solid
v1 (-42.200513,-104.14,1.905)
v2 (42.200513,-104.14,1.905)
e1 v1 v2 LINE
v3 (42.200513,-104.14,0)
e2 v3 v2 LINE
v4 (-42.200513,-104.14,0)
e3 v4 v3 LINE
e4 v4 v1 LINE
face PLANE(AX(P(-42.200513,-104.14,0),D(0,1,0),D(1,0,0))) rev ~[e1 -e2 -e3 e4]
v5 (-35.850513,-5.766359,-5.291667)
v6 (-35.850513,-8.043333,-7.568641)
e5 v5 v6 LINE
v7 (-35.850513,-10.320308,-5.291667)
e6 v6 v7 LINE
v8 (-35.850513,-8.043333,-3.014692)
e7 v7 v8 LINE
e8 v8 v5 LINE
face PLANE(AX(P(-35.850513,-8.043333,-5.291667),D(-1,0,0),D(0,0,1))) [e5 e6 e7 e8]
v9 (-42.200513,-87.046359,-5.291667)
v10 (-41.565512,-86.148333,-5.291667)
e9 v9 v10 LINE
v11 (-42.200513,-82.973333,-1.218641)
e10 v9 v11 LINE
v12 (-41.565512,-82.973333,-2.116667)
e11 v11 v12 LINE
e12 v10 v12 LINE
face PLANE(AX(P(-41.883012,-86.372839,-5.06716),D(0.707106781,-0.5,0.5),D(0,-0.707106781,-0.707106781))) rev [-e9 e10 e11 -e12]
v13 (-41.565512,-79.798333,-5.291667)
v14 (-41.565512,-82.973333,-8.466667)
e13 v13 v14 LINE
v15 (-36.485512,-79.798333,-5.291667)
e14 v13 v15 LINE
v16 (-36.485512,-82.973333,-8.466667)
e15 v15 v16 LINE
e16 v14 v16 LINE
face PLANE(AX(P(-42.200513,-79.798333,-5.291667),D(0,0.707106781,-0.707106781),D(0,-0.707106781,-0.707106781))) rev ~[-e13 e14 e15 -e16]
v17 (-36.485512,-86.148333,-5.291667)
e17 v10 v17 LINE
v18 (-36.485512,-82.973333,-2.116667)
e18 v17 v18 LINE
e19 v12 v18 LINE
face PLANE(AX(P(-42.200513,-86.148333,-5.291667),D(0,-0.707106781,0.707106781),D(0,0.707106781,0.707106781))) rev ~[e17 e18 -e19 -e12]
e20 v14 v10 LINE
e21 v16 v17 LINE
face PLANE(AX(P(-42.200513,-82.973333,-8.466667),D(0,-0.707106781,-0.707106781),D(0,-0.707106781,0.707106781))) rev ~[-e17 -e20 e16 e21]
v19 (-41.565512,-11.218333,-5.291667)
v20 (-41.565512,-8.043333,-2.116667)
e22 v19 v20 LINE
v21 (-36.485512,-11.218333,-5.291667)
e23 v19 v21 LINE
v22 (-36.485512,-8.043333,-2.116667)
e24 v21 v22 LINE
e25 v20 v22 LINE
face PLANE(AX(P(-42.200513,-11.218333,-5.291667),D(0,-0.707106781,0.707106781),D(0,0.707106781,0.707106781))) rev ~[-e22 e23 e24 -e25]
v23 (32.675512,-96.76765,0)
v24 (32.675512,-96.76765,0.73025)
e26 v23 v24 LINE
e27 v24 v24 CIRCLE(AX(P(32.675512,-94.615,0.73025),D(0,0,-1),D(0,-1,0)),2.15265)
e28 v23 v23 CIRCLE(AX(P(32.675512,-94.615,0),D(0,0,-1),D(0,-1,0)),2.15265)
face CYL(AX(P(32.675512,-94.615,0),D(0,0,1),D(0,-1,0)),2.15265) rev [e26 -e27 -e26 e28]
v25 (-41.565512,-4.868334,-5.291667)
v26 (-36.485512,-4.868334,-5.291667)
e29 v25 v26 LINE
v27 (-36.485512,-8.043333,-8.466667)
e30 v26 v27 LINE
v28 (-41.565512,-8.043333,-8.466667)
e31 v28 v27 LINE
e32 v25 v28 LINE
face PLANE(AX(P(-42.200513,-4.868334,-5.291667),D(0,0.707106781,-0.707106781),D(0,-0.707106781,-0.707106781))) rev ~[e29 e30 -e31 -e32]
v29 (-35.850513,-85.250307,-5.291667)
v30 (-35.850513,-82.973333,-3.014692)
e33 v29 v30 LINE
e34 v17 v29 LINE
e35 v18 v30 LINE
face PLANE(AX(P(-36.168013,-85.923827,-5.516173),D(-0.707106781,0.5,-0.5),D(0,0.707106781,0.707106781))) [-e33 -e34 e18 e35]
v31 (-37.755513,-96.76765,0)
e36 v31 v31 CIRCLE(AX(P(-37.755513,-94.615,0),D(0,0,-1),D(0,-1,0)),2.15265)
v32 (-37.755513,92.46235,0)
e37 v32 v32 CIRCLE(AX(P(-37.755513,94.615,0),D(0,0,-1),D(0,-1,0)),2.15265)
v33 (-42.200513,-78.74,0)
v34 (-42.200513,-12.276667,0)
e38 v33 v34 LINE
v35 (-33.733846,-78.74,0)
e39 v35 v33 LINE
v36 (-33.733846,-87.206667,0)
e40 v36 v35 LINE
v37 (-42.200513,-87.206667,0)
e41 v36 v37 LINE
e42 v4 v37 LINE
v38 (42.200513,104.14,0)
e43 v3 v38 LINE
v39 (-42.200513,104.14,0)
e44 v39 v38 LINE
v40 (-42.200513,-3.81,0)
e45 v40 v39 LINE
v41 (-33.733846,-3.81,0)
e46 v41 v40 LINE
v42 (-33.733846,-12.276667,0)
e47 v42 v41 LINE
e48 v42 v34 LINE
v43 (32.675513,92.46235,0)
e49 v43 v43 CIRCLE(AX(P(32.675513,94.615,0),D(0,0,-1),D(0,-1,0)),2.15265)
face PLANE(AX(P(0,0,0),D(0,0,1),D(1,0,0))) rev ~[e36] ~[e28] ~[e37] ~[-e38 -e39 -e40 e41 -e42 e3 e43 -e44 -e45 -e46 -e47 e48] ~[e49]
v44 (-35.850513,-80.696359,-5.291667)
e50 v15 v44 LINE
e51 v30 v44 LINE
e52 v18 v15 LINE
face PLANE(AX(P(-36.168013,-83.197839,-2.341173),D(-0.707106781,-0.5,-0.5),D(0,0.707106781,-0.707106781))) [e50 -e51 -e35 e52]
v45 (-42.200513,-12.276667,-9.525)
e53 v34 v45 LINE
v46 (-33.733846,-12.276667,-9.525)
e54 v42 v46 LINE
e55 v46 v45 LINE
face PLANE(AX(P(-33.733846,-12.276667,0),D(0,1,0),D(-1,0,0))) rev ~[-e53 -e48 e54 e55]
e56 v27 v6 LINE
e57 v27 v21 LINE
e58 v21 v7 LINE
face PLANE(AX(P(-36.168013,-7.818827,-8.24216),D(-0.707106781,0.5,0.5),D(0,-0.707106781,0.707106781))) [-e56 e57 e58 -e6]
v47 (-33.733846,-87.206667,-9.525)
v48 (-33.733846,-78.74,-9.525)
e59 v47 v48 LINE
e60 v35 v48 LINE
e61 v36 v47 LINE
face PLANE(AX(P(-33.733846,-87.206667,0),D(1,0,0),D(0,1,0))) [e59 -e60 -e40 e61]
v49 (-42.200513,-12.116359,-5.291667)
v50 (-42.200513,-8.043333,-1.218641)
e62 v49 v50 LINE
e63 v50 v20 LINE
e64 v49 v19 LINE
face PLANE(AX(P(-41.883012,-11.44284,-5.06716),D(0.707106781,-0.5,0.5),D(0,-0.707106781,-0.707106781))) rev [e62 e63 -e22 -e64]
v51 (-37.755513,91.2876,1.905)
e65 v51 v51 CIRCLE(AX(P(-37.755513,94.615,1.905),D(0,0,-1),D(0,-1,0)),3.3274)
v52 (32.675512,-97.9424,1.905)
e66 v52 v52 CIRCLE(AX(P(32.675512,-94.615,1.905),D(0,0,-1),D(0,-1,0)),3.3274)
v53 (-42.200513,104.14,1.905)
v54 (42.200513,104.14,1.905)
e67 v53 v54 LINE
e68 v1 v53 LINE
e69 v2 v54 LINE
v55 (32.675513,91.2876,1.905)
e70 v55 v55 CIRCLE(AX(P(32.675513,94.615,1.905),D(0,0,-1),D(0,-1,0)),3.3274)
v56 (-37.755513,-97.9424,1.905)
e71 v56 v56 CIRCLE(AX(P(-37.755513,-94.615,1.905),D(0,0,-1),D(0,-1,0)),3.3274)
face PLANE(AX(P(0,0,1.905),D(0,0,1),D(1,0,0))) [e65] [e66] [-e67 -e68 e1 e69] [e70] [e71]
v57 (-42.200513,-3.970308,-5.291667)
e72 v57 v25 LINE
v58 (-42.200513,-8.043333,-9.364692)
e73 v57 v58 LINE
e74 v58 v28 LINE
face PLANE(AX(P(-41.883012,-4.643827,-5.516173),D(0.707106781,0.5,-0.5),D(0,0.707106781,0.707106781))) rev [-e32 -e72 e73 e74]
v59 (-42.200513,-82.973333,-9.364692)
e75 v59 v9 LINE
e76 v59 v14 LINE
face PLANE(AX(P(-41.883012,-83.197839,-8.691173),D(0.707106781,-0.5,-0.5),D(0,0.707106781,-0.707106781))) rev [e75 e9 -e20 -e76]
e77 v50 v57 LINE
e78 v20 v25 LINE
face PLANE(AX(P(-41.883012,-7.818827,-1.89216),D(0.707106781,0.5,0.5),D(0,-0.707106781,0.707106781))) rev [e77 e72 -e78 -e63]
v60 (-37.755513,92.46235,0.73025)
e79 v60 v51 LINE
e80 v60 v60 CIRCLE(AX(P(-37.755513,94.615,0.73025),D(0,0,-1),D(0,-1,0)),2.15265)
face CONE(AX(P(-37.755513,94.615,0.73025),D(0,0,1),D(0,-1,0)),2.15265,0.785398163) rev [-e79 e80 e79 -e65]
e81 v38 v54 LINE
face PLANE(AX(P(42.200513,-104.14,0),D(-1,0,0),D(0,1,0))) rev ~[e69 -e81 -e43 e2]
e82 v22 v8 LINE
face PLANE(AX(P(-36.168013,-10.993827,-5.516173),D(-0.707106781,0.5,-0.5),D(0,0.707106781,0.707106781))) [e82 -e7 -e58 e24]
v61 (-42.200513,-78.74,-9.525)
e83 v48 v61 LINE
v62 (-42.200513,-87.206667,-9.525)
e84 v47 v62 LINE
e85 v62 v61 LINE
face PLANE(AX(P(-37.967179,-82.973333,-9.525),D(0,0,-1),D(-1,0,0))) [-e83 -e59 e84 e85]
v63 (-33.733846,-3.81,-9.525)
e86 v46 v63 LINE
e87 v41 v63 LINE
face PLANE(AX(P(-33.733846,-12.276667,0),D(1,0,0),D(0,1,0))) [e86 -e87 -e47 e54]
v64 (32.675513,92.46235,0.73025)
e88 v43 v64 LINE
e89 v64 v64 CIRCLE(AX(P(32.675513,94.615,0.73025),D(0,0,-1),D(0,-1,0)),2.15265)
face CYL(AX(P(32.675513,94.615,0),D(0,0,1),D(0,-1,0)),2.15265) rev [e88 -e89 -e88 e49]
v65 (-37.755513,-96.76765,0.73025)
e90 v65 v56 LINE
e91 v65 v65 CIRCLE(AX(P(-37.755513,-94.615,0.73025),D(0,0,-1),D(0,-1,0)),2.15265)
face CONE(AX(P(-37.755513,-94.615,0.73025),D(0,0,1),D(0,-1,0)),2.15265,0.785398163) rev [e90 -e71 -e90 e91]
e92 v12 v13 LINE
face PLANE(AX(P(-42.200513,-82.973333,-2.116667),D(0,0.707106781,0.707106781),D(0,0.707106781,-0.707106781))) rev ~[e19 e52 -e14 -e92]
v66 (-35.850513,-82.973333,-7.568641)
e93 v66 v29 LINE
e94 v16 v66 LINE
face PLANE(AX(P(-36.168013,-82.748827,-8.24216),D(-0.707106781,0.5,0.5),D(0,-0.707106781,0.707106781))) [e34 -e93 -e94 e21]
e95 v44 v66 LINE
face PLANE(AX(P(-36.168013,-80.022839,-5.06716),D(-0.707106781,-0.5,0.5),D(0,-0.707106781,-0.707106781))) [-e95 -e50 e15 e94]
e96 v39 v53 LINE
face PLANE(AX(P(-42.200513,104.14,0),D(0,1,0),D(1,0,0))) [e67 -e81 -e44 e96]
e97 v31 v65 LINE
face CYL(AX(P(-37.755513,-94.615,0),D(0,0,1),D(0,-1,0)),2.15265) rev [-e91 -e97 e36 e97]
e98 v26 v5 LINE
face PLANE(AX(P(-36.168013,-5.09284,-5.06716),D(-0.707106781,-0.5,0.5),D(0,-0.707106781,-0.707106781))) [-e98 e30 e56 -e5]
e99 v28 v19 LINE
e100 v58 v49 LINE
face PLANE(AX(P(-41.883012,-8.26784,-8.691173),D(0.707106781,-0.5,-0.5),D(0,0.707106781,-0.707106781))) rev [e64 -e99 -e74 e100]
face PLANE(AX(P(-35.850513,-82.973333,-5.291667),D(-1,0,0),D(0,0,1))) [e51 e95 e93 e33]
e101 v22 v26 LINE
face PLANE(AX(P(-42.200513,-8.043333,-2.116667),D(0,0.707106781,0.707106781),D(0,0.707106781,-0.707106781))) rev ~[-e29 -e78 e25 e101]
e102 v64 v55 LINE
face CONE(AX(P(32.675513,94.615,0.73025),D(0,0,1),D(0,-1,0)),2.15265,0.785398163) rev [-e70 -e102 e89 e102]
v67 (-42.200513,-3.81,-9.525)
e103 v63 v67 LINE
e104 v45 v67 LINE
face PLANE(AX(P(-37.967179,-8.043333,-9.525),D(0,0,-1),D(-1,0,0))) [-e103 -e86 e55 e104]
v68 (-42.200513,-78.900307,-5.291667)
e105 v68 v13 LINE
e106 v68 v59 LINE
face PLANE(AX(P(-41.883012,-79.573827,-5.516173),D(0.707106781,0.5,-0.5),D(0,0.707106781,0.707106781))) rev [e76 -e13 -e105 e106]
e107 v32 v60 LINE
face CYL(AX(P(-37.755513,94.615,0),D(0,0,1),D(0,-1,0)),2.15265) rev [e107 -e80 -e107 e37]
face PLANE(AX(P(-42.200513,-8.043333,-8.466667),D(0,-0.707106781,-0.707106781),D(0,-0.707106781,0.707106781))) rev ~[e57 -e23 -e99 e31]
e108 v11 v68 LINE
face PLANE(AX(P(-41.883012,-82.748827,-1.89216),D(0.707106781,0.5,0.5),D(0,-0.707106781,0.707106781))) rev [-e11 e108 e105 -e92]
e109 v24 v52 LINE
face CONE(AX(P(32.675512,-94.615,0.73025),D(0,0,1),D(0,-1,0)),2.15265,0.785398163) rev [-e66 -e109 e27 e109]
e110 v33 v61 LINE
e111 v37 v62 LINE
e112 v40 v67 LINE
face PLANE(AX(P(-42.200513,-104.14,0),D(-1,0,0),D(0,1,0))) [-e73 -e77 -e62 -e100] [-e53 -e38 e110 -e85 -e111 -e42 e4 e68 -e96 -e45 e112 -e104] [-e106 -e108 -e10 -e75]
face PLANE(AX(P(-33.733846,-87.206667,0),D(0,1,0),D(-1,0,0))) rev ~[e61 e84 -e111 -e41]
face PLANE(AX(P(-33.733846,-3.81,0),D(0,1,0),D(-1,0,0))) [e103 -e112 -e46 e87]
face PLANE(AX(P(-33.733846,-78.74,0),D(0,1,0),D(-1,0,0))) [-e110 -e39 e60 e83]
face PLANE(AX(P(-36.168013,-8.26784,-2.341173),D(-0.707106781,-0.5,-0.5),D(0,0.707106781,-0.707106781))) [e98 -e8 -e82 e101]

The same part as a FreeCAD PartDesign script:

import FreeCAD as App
import Part
import Sketcher

V = App.Vector
Q = App.Units.Quantity


def edges_at(feature, points):
    """Names of the edges that pass closest to the given points."""
    edges = feature.Shape.Edges
    near = lambda p: min(range(len(edges)), key=lambda i: edges[i].distToShape(Part.Vertex(*p))[0])
    return sorted({f"Edge{near(p) + 1}" for p in points})


def add_polygon(sketch, points):
    """Adds a closed chain of lines whose ends are joined by coincident constraints."""
    first, n = sketch.GeometryCount, len(points)
    for a, b in zip(points, points[1:] + points[:1]):
        sketch.addGeometry(Part.LineSegment(App.Vector(*a, 0), App.Vector(*b, 0)), False)
    for i in range(n):
        sketch.addConstraint(Sketcher.Constraint("Coincident", first + i, 2, first + (i + 1) % n, 1))

doc = App.newDocument("Part")
body = doc.addObject("PartDesign::Body", "Body")

sketch1 = doc.addObject("Sketcher::SketchObject", "Sketch")
body.addObject(sketch1)
sketch1.AttachmentSupport = (doc.XY_Plane, [""])
sketch1.MapMode = "FlatFace"
add_polygon(sketch1, [(-42, 104), (-42, -104), (42, -104), (42, 104)])
sketch1.addConstraint([
    Sketcher.Constraint("Vertical", 0),
    Sketcher.Constraint("Horizontal", 1),
    Sketcher.Constraint("Vertical", 2),
    Sketcher.Constraint("Horizontal", 3),
    Sketcher.Constraint("Symmetric", 0, 2, 2, 2, -1, 1),
    Sketcher.Constraint("DistanceY", 0, 2, 0, 1, Q("8.2 in")),
    Sketcher.Constraint("DistanceX", 1, 1, 1, 2, 84.401025),
])
pad1 = doc.addObject("PartDesign::Pad", "Pad")
body.addObject(pad1)
pad1.Profile = sketch1
pad1.Length = Q("0.075 in")

sketch2 = doc.addObject("Sketcher::SketchObject", "Sketch001")
body.addObject(sketch2)
sketch2.AttachmentSupport = (doc.YZ_Plane, [""])
sketch2.MapMode = "FlatFace"
sketch2.AttachmentOffset = App.Placement(V(0, 0, -37.755513), App.Rotation())
add_polygon(sketch2, [(94.6, 0), (94.6, 1.9), (91.3, 1.9), (92.5, 0.7), (92.5, 0)])
sketch2.addGeometry(Part.LineSegment(V(94.6, 1.9, 0), V(94.6, 0, 0)), True)
sketch2.addConstraint([
    Sketcher.Constraint("Vertical", 0),
    Sketcher.Constraint("Horizontal", 1),
    Sketcher.Constraint("Vertical", 3),
    Sketcher.Constraint("Horizontal", 4),
    Sketcher.Constraint("Vertical", 5),
    Sketcher.Constraint("Coincident", 5, 1, 0, 2),
    Sketcher.Constraint("PointOnObject", 3, 2, -1),
    Sketcher.Constraint("PointOnObject", 5, 2, -1),
    Sketcher.Constraint("Angle", 2, Q("-45 deg")),
    Sketcher.Constraint("DistanceX", 1, 2, 1, 1, Q("0.131 in")),
    Sketcher.Constraint("DistanceY", 0, 1, 0, 2, Q("0.075 in")),
    Sketcher.Constraint("DistanceX", -1, 1, 0, 2, Q("3.725 in")),
    Sketcher.Constraint("DistanceX", 4, 1, 4, 2, 2.15265),
])
groove = doc.addObject("PartDesign::Groove", "Groove")
body.addObject(groove)
groove.Profile = sketch2
groove.ReferenceAxis = (sketch2, ["Axis0"])
groove.Angle = 360
doc.recompute()

linearpattern = doc.addObject("PartDesign::LinearPattern", "LinearPattern")
body.addObject(linearpattern)
linearpattern.Originals = [groove]
linearpattern.Direction = (doc.Y_Axis, [""])
linearpattern.Mode = "offset"
linearpattern.Offset = Q("7.45 in")
linearpattern.Occurrences = 2
linearpattern.Reversed = True
body.Tip = linearpattern
doc.recompute()

datumline = doc.addObject("PartDesign::Line", "DatumLine")
body.addObject(datumline)
datumline.Placement = App.Placement(V(0, 0, 0), App.Rotation(V(0, 0, 1), V(0.348820118, -0.937189696, 0)))
linearpattern2 = doc.addObject("PartDesign::LinearPattern", "LinearPattern001")
body.addObject(linearpattern2)
linearpattern2.Originals = [groove]
linearpattern2.Direction = (datumline, [""])
linearpattern2.Mode = "offset"
linearpattern2.Offset = 201.912165
linearpattern2.Occurrences = 2
body.Tip = linearpattern2
doc.recompute()

linearpattern3 = doc.addObject("PartDesign::LinearPattern", "LinearPattern002")
body.addObject(linearpattern3)
linearpattern3.Originals = [groove]
linearpattern3.Direction = (doc.X_Axis, [""])
linearpattern3.Mode = "offset"
linearpattern3.Offset = 70.431025
linearpattern3.Occurrences = 2
body.Tip = linearpattern3

sketch3 = doc.addObject("Sketcher::SketchObject", "Sketch002")
body.addObject(sketch3)
sketch3.AttachmentSupport = (doc.XY_Plane, [""])
sketch3.MapMode = "FlatFace"
add_polygon(sketch3, [(-34, -4), (-34, -12), (-42, -12), (-42, -4)])
add_polygon(sketch3, [(-34, -79), (-34, -87), (-42, -87), (-42, -79)])
sketch3.addConstraint([
    Sketcher.Constraint("Vertical", 0),
    Sketcher.Constraint("Horizontal", 1),
    Sketcher.Constraint("Vertical", 2),
    Sketcher.Constraint("Horizontal", 3),
    Sketcher.Constraint("Vertical", 4),
    Sketcher.Constraint("Horizontal", 5),
    Sketcher.Constraint("Vertical", 6),
    Sketcher.Constraint("Horizontal", 7),
    Sketcher.Constraint("Vertical", 3, 2, 4, 2),
    Sketcher.Constraint("Vertical", 2, 2, 5, 2),
    Sketcher.Constraint("Equal", 7, 0),
    Sketcher.Constraint("Equal", 2, 4),
    Sketcher.Constraint("DistanceY", 6, 2, -1, 1, Q("3.1 in")),
    Sketcher.Constraint("DistanceY", 2, 2, -1, 1, Q("0.15 in")),
    Sketcher.Constraint("DistanceX", 1, 2, 1, 1, 8.466667),
    Sketcher.Constraint("DistanceX", 0, 2, -1, 1, 33.733846),
])
pad2 = doc.addObject("PartDesign::Pad", "Pad001")
body.addObject(pad2)
pad2.Profile = sketch3
pad2.Length = Q("0.375 in")
pad2.Reversed = True

sketch4 = doc.addObject("Sketcher::SketchObject", "Sketch003")
body.addObject(sketch4)
sketch4.AttachmentSupport = (doc.YZ_Plane, [""])
sketch4.MapMode = "FlatFace"
sketch4.AttachmentOffset = App.Placement(V(0, 0, -42.200513), App.Rotation())
add_polygon(sketch4, [(-79.8, -5.3), (-83, -2.1), (-86.1, -5.3), (-83, -8.5)])
add_polygon(sketch4, [(-4.9, -5.3), (-8, -2.1), (-11.2, -5.3), (-8, -8.5)])
sketch4.addConstraint([
    Sketcher.Constraint("Perpendicular", 0, 1),
    Sketcher.Constraint("Perpendicular", 1, 2),
    Sketcher.Constraint("Perpendicular", 2, 3),
    Sketcher.Constraint("Perpendicular", 3, 4),
    Sketcher.Constraint("Perpendicular", 4, 5),
    Sketcher.Constraint("Perpendicular", 5, 6),
    Sketcher.Constraint("Perpendicular", 6, 7),
    Sketcher.Constraint("Horizontal", 1, 2, 3, 2),
    Sketcher.Constraint("Horizontal", 0, 2, 4, 2),
    Sketcher.Constraint("Horizontal", 3, 2, 5, 2),
    Sketcher.Constraint("Horizontal", 2, 2, 6, 2),
    Sketcher.Constraint("Vertical", 0, 2, 2, 2),
    Sketcher.Constraint("DistanceX", 3, 2, 5, 2, Q("2.7 in")),
    Sketcher.Constraint("DistanceY", 2, 2, 0, 2, Q("0.25 in")),
    Sketcher.Constraint("DistanceX", 0, 2, -1, 1, 82.973333),
    Sketcher.Constraint("DistanceY", 0, 2, -1, 1, 2.116667),
])
pocket1 = doc.addObject("PartDesign::Pocket", "Pocket")
body.addObject(pocket1)
pocket1.Profile = sketch4
pocket1.Length = Q("0.25 in")
pocket1.Reversed = True
doc.recompute()

chamfer = doc.addObject("PartDesign::Chamfer", "Chamfer")
body.addObject(chamfer)
chamfer.Base = (pocket1, edges_at(pocket1, [
    (-42.201, -84.561, -3.704),
    (-42.201, -84.561, -6.879),
    (-42.201, -81.386, -6.879),
    (-42.201, -81.386, -3.704),
    (-35.851, -84.561, -3.704),
    (-35.851, -84.561, -6.879),
    (-35.851, -81.386, -6.879),
    (-35.851, -81.386, -3.704),
    (-42.201, -9.631, -3.704),
    (-42.201, -9.631, -6.879),
    (-42.201, -6.456, -6.879),
    (-42.201, -6.456, -3.704),
    (-35.851, -9.631, -3.704),
    (-35.851, -9.631, -6.879),
    (-35.851, -6.456, -6.879),
    (-35.851, -6.456, -3.704),
]))
chamfer.Size = Q("0.025 in")

doc.recompute()
